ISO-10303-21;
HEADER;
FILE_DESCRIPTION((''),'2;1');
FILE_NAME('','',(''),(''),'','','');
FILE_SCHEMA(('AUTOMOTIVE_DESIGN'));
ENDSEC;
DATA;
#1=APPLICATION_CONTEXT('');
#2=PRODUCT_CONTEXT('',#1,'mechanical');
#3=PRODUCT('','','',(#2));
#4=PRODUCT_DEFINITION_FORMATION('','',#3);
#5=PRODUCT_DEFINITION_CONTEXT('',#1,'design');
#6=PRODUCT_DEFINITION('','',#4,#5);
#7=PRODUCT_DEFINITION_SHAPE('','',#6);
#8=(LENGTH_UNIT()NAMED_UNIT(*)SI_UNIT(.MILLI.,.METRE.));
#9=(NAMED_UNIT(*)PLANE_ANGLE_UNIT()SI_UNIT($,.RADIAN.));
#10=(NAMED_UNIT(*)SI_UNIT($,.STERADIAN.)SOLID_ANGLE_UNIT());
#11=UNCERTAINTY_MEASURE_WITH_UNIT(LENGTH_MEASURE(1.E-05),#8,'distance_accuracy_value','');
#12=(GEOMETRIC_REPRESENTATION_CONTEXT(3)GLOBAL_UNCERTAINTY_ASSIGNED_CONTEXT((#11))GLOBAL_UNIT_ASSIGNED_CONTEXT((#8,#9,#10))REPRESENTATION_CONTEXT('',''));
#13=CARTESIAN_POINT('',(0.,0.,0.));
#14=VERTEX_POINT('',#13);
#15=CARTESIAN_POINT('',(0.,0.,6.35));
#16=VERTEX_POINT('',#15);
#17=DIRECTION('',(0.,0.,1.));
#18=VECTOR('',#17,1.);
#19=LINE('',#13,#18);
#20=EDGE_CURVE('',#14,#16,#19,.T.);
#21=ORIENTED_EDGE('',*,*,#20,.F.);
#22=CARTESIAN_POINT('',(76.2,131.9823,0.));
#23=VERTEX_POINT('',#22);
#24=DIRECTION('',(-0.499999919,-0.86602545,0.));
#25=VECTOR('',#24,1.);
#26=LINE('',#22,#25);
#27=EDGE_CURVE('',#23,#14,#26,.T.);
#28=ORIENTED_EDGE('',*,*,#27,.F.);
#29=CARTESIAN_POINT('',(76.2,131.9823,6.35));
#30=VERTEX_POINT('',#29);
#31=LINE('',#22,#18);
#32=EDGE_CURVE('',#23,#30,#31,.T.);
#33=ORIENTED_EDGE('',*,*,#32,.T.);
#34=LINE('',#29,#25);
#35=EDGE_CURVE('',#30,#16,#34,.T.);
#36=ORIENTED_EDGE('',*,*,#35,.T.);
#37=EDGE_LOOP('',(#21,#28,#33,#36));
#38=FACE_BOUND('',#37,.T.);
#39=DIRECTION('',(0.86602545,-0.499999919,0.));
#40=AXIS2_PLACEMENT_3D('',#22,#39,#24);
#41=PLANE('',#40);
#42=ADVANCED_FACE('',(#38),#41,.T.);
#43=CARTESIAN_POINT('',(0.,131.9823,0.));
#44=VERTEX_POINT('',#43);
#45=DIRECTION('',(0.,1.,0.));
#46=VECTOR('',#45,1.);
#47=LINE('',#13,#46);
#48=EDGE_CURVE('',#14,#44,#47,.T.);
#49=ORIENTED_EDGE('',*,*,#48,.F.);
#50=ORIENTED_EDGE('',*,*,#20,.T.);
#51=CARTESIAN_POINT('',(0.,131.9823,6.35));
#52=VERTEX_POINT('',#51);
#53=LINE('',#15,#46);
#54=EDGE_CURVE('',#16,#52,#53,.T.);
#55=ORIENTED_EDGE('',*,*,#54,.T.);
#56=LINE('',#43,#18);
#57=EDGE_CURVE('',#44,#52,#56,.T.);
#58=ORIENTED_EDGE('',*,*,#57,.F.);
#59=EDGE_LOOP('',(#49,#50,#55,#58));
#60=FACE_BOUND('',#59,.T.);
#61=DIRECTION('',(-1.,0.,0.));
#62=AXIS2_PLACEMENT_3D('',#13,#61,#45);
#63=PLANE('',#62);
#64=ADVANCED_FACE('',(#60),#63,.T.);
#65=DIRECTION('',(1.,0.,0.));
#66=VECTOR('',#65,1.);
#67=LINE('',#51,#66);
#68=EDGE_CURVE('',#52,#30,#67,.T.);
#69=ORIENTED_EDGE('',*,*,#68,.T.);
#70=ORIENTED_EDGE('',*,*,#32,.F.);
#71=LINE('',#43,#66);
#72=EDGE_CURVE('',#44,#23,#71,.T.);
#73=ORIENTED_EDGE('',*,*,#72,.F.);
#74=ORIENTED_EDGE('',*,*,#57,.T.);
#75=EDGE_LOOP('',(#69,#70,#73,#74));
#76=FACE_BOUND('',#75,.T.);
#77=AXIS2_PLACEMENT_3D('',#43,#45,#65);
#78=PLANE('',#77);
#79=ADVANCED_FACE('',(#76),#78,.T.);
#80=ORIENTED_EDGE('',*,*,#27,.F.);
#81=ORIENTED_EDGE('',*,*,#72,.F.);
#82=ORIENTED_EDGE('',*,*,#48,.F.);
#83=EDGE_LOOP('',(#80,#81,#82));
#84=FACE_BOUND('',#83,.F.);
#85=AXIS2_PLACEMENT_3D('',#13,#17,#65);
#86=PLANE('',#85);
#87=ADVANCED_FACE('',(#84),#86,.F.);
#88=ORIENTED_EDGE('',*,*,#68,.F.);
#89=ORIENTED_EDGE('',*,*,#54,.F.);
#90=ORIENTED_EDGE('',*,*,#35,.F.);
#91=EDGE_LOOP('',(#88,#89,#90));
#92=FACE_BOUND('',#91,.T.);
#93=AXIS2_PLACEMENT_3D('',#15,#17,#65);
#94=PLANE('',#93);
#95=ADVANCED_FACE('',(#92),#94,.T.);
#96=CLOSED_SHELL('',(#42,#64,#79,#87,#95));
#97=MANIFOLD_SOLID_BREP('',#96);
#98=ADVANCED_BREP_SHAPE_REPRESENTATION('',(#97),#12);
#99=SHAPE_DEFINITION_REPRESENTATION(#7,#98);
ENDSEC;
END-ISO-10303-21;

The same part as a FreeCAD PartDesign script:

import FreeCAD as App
import Part
import Sketcher

V = App.Vector
Q = App.Units.Quantity


def add_polygon(sketch, points):
    """Adds a closed chain of lines whose ends are joined by coincident constraints."""
    first, n = sketch.GeometryCount, len(points)
    for a, b in zip(points, points[1:] + points[:1]):
        sketch.addGeometry(Part.LineSegment(App.Vector(*a, 0), App.Vector(*b, 0)), False)
    for i in range(n):
        sketch.addConstraint(Sketcher.Constraint("Coincident", first + i, 2, first + (i + 1) % n, 1))

doc = App.newDocument("Part")
params = doc.addObject("Spreadsheet::Sheet", "Params")
for row, (alias, value) in enumerate([
    ("sketch1_width", "3 in"),
    ("sketch1_length", "6 in"),
    ("pad1_length", "0.25 in"),
], start=1):
    params.set(f"A{row}", alias)
    params.set(f"B{row}", "=" + value)
    params.setAlias(f"B{row}", alias)

body = doc.addObject("PartDesign::Body", "Body")

sketch1 = body.newObject("Sketcher::SketchObject", "Sketch")
sketch1.AttachmentSupport = (doc.getObject("XY_Plane"), [""])
sketch1.MapMode = "FlatFace"
add_polygon(sketch1, [(0, 132), (0, 0), (76, 132)])
sketch1.addConstraint([
    Sketcher.Constraint("Vertical", 0),
    Sketcher.Constraint("Horizontal", 2),
    Sketcher.Constraint("Coincident", 0, 2, -1, 1),
    Sketcher.Constraint("DistanceX", 2, 2, 2, 1, Q("3 in")),
    Sketcher.Constraint("Distance", 1, Q("6 in")),
])
sketch1.setExpression("Constraints[6]", "Params.sketch1_width")
sketch1.setExpression("Constraints[7]", "Params.sketch1_length")
pad1 = body.newObject("PartDesign::Pad", "Pad")
pad1.Profile = sketch1
pad1.setExpression("Length", "Params.pad1_length")

doc.recompute()
